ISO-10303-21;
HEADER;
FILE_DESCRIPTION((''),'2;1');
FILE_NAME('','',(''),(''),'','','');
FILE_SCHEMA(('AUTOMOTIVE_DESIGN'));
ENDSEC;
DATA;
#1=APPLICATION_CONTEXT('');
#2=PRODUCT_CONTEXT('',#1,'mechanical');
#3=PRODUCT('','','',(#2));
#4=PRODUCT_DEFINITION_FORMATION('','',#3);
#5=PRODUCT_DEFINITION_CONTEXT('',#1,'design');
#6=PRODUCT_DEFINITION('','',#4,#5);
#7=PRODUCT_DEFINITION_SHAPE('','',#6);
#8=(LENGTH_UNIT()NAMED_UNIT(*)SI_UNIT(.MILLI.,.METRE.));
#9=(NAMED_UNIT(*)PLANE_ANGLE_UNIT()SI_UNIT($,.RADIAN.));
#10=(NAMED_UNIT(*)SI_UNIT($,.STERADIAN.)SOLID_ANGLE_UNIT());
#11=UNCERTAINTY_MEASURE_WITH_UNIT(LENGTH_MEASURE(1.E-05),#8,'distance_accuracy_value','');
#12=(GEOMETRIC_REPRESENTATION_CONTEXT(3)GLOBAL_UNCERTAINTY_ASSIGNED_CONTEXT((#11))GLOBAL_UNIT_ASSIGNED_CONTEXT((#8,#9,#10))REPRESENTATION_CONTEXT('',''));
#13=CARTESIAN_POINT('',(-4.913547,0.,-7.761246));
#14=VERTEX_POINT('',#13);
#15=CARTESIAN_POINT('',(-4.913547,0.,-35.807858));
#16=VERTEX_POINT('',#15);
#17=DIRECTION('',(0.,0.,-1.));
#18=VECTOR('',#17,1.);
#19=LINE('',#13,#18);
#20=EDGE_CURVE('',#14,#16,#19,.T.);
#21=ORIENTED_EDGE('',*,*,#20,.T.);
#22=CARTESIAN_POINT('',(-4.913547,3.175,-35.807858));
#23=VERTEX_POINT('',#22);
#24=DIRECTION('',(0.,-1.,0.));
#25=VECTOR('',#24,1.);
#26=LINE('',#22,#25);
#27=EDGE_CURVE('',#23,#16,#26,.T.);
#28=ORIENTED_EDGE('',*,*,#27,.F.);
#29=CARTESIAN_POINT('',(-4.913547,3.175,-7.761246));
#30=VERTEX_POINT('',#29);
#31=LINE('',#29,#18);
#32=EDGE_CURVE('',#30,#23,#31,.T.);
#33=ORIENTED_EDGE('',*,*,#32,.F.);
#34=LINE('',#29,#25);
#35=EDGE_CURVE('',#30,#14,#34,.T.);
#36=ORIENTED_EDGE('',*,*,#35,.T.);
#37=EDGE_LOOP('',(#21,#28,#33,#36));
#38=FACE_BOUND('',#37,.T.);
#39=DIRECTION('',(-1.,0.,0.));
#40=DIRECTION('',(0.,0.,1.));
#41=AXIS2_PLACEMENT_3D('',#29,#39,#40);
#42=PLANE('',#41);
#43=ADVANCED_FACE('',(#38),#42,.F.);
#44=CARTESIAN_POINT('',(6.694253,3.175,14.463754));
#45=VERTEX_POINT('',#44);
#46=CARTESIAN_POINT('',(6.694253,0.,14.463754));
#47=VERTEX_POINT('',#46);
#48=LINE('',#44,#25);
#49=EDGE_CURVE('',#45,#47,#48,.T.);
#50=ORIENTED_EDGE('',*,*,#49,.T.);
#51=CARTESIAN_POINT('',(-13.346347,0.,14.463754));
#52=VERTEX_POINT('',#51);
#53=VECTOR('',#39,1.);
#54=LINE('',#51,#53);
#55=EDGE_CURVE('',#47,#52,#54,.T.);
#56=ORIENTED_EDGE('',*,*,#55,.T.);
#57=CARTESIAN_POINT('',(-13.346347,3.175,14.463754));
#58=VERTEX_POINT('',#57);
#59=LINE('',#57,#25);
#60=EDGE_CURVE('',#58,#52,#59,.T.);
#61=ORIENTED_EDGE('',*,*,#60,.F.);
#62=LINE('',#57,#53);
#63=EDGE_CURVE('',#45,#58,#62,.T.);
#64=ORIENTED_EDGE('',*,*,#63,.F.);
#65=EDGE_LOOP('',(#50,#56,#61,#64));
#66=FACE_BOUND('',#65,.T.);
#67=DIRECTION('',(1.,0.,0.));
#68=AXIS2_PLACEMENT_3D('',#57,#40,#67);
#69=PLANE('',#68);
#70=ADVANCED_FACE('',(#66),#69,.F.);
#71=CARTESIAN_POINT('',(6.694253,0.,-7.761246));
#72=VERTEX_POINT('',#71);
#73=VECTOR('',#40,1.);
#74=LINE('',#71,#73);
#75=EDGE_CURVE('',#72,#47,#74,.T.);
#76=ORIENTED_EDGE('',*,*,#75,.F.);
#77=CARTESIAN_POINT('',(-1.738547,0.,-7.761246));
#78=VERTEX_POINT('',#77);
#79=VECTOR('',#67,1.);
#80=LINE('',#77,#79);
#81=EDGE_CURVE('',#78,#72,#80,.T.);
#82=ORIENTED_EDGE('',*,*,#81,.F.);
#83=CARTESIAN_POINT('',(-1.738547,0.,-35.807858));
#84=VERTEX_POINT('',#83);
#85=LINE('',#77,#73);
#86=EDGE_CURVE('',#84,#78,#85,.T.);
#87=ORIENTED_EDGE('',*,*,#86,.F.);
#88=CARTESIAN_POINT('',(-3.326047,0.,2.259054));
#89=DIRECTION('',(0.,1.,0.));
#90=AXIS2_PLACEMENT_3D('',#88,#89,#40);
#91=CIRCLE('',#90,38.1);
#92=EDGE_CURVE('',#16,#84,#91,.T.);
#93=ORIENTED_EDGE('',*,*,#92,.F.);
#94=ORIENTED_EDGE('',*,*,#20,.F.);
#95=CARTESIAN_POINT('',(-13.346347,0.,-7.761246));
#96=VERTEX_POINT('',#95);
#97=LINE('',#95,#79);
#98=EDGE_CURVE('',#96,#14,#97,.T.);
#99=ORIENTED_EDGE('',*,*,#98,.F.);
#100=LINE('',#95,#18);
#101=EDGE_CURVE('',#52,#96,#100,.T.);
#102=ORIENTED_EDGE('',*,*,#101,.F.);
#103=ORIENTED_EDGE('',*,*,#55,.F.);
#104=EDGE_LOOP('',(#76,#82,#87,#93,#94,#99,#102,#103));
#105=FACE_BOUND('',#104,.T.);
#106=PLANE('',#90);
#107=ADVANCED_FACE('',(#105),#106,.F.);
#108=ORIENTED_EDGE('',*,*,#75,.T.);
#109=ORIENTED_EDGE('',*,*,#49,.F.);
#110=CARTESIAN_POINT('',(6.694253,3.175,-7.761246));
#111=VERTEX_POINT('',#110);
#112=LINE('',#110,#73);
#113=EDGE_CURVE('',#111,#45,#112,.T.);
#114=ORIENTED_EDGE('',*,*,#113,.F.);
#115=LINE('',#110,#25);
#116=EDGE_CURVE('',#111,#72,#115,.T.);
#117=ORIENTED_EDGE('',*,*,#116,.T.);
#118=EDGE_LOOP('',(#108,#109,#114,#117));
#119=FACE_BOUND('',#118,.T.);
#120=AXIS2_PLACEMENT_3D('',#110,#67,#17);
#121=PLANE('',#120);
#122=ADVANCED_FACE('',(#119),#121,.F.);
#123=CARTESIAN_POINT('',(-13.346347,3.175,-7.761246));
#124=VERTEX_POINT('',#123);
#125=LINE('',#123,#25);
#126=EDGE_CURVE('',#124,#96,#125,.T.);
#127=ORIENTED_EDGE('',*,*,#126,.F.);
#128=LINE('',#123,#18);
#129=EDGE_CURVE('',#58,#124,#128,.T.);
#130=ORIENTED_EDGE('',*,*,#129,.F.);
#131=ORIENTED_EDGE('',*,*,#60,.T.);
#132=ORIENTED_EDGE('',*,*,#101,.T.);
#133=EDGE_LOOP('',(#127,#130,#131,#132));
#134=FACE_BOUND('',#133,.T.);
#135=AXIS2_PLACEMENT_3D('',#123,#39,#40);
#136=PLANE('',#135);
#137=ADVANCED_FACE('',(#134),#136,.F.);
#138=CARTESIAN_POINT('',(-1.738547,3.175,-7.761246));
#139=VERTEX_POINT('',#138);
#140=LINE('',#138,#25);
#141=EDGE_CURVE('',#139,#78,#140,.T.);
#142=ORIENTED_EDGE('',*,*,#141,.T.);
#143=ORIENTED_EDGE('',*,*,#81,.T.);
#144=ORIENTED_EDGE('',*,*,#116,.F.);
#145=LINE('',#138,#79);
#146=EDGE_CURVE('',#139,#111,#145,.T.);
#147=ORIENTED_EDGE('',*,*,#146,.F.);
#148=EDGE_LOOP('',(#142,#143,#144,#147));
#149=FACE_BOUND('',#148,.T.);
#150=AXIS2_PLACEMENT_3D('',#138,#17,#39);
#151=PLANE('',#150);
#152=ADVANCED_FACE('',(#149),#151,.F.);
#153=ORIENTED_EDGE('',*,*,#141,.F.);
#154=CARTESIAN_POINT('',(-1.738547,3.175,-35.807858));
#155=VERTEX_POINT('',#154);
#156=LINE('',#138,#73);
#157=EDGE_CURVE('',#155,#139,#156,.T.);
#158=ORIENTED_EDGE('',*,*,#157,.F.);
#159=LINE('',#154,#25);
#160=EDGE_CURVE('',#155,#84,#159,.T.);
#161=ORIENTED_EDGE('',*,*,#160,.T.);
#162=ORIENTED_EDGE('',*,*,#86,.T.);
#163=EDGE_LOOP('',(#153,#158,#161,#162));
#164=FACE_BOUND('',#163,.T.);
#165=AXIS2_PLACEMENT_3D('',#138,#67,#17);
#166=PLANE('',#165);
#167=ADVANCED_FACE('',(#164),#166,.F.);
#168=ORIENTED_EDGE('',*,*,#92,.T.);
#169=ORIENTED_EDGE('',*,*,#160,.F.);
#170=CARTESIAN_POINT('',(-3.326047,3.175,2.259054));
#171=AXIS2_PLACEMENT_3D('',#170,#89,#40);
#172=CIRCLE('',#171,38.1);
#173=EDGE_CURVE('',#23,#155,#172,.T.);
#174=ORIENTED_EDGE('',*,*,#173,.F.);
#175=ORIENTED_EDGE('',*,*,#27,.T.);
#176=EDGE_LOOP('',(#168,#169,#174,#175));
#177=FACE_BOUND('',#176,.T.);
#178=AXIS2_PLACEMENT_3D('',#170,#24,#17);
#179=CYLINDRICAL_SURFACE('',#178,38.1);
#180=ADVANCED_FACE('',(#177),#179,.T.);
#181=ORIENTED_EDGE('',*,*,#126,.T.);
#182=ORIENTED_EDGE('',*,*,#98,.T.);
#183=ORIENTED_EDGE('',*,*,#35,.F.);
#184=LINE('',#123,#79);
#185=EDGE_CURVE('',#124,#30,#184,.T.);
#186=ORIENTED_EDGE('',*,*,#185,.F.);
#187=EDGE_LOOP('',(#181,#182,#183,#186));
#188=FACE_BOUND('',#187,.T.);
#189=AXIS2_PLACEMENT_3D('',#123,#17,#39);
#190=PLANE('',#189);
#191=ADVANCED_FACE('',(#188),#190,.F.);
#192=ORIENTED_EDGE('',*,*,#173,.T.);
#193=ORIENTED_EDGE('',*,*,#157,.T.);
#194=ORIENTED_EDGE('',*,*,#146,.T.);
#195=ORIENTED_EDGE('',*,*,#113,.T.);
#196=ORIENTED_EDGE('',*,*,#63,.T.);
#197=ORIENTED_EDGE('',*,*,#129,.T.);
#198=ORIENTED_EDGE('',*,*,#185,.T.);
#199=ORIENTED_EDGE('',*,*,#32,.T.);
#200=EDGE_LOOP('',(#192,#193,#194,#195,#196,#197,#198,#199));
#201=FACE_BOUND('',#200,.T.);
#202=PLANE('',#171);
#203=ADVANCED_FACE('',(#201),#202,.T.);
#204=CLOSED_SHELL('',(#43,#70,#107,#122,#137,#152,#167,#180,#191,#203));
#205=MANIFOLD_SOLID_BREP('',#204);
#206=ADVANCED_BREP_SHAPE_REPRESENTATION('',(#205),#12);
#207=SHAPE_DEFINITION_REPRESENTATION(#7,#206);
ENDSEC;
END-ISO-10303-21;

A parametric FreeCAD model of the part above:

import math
import FreeCAD as App
import Part
import Sketcher
from FreeCAD import Vector
Q = App.Units.Quantity

doc = App.newDocument("Part")
body = doc.addObject("PartDesign::Body", "Body")

# Sketch on XZ plane
sketch1 = body.newObject("Sketcher::SketchObject", "Sketch")
sketch1.AttachmentSupport = (doc.getObject("XZ_Plane"), [""])
sketch1.MapMode = "FlatFace"
sketch1.addGeometry(Part.LineSegment(Vector(-4.9, -7.8, 0), Vector(-4.9, -35.8, 0)), False)
sketch1.addGeometry(Part.ArcOfCircle(Part.Circle(Vector(-3.3, 2.3, 0), Vector(0, 0, 1), 38.1), math.radians(-88), math.radians(268)), False)
sketch1.addGeometry(Part.LineSegment(Vector(-1.7, -35.8, 0), Vector(-1.7, -7.8, 0)), False)
sketch1.addGeometry(Part.LineSegment(Vector(-1.7, -7.8, 0), Vector(6.7, -7.8, 0)), False)
sketch1.addGeometry(Part.LineSegment(Vector(6.7, -7.8, 0), Vector(6.7, 14.5, 0)), False)
sketch1.addGeometry(Part.LineSegment(Vector(6.7, 14.5, 0), Vector(-13.3, 14.5, 0)), False)
sketch1.addGeometry(Part.LineSegment(Vector(-13.3, 14.5, 0), Vector(-13.3, -7.8, 0)), False)
sketch1.addGeometry(Part.LineSegment(Vector(-13.3, -7.8, 0), Vector(-4.9, -7.8, 0)), False)
sketch1.addConstraint(Sketcher.Constraint("Coincident", 0, 2, 1, 2))
sketch1.addConstraint(Sketcher.Constraint("Coincident", 1, 1, 2, 1))
sketch1.addConstraint(Sketcher.Constraint("Coincident", 2, 2, 3, 1))
sketch1.addConstraint(Sketcher.Constraint("Coincident", 3, 2, 4, 1))
sketch1.addConstraint(Sketcher.Constraint("Coincident", 4, 2, 5, 1))
sketch1.addConstraint(Sketcher.Constraint("Coincident", 5, 2, 6, 1))
sketch1.addConstraint(Sketcher.Constraint("Coincident", 6, 2, 7, 1))
sketch1.addConstraint(Sketcher.Constraint("Coincident", 7, 2, 0, 1))
sketch1.addConstraint(Sketcher.Constraint("Vertical", 0))
sketch1.addConstraint(Sketcher.Constraint("Vertical", 2))
sketch1.addConstraint(Sketcher.Constraint("Horizontal", 3))
sketch1.addConstraint(Sketcher.Constraint("Vertical", 4))
sketch1.addConstraint(Sketcher.Constraint("Horizontal", 5))
sketch1.addConstraint(Sketcher.Constraint("Vertical", 6))
sketch1.addConstraint(Sketcher.Constraint("Horizontal", 7))
sketch1.addConstraint(Sketcher.Constraint("Horizontal", 0, 2, 1, 1))
sketch1.addConstraint(Sketcher.Constraint("Horizontal", 3, 2, 6, 2))
sketch1.addConstraint(Sketcher.Constraint("Equal", 3, 7))
sketch1.addConstraint(Sketcher.Constraint("Radius", 1, Q("1.5 in")))
sketch1.addConstraint(Sketcher.Constraint("DistanceX", 3, 1, 3, 2, Q("0.332 in")))
sketch1.addConstraint(Sketcher.Constraint("DistanceX", 5, 2, 5, 1, Q("0.789 in")))
sketch1.addConstraint(Sketcher.Constraint("DistanceY", 4, 1, 4, 2, Q("0.875 in")))
sketch1.addConstraint(Sketcher.Constraint("DistanceY", 2, 2, 1, 3, Q("0.3945 in")))
sketch1.addConstraint(Sketcher.Constraint("DistanceY", 0, 2, -1, 1, Q("35.807858 mm")))
sketch1.addConstraint(Sketcher.Constraint("DistanceX", 1, 3, -1, 1, Q("3.326047 mm")))
pad1 = body.newObject("PartDesign::Pad", "Pad")
pad1.Profile = sketch1
pad1.Length = Q("0.125 in")
pad1.Reversed = True

doc.recompute()
